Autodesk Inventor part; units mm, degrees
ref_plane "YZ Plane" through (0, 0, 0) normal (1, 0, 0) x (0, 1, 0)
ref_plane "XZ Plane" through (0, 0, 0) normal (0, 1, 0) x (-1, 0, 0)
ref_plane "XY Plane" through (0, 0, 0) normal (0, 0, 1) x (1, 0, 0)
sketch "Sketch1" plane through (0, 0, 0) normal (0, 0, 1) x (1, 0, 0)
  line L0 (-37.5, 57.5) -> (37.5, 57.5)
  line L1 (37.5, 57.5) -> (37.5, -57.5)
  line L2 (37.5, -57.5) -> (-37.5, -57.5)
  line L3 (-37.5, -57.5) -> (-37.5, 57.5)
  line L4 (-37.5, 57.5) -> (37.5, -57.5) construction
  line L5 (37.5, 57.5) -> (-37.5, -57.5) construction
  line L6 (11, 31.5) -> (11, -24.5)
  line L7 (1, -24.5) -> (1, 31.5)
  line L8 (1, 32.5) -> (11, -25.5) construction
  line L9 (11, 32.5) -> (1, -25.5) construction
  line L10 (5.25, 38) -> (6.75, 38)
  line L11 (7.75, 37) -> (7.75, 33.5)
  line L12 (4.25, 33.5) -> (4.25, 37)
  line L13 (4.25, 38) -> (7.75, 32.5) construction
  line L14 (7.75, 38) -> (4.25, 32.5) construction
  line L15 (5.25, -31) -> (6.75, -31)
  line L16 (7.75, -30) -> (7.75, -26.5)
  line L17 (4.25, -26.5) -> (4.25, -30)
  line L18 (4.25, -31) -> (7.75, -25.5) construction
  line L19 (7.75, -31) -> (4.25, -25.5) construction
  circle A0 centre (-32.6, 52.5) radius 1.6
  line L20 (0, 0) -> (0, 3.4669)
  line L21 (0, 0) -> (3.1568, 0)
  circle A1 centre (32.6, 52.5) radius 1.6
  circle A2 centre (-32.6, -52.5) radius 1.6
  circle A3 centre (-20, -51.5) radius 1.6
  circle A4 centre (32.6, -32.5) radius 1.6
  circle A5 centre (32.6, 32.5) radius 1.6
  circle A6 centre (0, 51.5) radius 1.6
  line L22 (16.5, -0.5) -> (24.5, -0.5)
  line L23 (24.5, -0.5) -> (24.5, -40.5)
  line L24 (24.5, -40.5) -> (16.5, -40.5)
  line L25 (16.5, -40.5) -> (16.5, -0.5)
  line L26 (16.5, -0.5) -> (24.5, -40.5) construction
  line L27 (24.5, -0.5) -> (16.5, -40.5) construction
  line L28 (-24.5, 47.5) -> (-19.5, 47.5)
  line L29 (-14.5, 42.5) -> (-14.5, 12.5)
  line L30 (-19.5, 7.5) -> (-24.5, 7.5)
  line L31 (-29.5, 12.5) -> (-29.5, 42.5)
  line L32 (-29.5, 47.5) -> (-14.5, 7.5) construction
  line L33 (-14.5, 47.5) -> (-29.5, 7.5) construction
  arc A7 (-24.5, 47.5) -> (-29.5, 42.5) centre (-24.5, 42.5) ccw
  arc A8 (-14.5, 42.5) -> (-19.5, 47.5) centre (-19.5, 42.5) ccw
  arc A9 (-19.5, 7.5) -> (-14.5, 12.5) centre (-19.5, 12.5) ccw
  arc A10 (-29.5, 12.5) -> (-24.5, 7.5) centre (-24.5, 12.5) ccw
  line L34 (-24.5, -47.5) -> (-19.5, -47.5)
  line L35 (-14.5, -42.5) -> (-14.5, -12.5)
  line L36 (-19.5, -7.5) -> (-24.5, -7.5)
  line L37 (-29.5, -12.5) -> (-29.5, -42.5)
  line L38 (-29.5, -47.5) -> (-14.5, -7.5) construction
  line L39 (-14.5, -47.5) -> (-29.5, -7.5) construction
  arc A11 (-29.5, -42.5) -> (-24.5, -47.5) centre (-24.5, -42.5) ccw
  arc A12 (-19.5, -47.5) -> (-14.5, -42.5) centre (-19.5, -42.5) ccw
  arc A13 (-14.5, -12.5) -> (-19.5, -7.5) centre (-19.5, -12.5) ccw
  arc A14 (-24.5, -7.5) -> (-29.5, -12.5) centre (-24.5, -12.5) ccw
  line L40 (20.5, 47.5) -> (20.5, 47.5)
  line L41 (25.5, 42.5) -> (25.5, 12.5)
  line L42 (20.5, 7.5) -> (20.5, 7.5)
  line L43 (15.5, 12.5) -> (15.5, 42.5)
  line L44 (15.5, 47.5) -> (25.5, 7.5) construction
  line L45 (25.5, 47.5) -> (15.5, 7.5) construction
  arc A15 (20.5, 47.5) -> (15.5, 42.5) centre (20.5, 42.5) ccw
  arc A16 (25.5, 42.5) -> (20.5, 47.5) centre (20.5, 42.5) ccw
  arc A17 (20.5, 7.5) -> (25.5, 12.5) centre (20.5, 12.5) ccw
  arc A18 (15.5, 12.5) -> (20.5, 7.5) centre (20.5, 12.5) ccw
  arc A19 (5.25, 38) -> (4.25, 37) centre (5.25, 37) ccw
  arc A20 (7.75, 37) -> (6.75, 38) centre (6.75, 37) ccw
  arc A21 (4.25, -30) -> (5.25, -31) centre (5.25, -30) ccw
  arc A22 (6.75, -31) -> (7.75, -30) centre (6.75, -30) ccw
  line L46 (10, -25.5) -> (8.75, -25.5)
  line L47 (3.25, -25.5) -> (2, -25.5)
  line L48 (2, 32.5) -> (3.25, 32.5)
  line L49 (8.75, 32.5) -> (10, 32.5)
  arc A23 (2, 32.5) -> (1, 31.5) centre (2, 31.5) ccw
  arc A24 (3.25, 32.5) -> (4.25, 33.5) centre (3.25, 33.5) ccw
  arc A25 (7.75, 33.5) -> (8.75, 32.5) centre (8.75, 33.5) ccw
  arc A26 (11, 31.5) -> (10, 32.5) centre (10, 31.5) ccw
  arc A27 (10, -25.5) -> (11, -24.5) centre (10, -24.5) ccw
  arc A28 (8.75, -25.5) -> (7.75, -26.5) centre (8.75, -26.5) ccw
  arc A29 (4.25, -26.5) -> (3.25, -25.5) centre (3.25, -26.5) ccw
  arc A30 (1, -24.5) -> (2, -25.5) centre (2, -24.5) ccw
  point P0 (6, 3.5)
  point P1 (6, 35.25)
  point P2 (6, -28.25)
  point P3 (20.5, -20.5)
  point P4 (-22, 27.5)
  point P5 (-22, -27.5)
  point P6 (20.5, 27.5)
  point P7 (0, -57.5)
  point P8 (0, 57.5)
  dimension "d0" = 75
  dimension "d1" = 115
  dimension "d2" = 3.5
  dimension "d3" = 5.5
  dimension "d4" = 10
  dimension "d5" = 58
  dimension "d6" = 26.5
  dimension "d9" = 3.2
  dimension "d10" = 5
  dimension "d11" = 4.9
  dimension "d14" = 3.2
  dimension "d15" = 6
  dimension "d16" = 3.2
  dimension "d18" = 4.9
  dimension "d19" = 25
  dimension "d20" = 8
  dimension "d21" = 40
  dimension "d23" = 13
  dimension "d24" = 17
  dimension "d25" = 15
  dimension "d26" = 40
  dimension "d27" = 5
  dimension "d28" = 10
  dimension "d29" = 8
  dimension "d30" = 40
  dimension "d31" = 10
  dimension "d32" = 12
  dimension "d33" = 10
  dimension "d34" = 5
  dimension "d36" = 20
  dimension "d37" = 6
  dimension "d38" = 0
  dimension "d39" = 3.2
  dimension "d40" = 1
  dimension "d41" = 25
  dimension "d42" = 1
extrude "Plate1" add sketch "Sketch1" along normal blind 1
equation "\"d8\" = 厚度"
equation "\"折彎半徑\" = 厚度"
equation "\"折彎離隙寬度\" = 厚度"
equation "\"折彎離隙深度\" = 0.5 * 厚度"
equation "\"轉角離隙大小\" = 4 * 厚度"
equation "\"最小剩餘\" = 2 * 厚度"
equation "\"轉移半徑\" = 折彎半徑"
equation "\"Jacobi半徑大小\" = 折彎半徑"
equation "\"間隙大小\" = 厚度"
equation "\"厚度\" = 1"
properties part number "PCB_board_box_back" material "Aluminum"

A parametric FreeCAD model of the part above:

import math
import FreeCAD as App
import Part
import Sketcher
Q = App.Units.Quantity

doc = App.newDocument("Part")
params = doc.addObject("Spreadsheet::Sheet", "Params")
for row, (alias, value) in enumerate([
    ("sketch1_radius", "5 mm"),
    ("sketch1_radius2", "1 mm"),
    ("sketch1_diameter", "3.2 mm"),
    ("sketch1_width", "75 mm"),
    ("sketch1_width2", "5 mm"),
    ("pad1_length", "1 mm"),
], start=1):
    params.set(f"A{row}", alias)
    params.set(f"B{row}", "=" + value)
    params.setAlias(f"B{row}", alias)

body = doc.addObject("PartDesign::Body", "Body")

# Sketch on XY plane
sketch1 = body.newObject("Sketcher::SketchObject", "Sketch")
sketch1.AttachmentSupport = (doc.getObject("XY_Plane"), [""])
sketch1.MapMode = "FlatFace"
sketch1.addGeometry([
    Part.LineSegment(App.Vector(37.5, 57.5, 0), App.Vector(-37.5, 57.5, 0)),  # 0
    Part.LineSegment(App.Vector(-37.5, 57.5, 0), App.Vector(-37.5, -57.5, 0)),  # 1
    Part.LineSegment(App.Vector(-37.5, -57.5, 0), App.Vector(37.5, -57.5, 0)),  # 2
    Part.LineSegment(App.Vector(37.5, -57.5, 0), App.Vector(37.5, 57.5, 0)),  # 3
    Part.Circle(App.Vector(-32.6, -52.5, 0), App.Vector(0, 0, 1), 1.6),  # 4
    Part.Circle(App.Vector(-20, -51.5, 0), App.Vector(0, 0, 1), 1.6),  # 5
    Part.LineSegment(App.Vector(-19.5, -47.5, 0), App.Vector(-24.5, -47.5, 0)),  # 6
    Part.ArcOfCircle(Part.Circle(App.Vector(-24.5, -42.5, 0), App.Vector(0, 0, 1), 5), math.radians(180), math.radians(270)),  # 7
    Part.LineSegment(App.Vector(-29.5, -42.5, 0), App.Vector(-29.5, -12.5, 0)),  # 8
    Part.ArcOfCircle(Part.Circle(App.Vector(-24.5, -12.5, 0), App.Vector(0, 0, 1), 5), math.radians(90), math.radians(180)),  # 9
    Part.LineSegment(App.Vector(-24.5, -7.5, 0), App.Vector(-19.5, -7.5, 0)),  # 10
    Part.ArcOfCircle(Part.Circle(App.Vector(-19.5, -12.5, 0), App.Vector(0, 0, 1), 5), math.radians(0), math.radians(90)),  # 11
    Part.LineSegment(App.Vector(-14.5, -12.5, 0), App.Vector(-14.5, -42.5, 0)),  # 12
    Part.ArcOfCircle(Part.Circle(App.Vector(-19.5, -42.5, 0), App.Vector(0, 0, 1), 5), math.radians(-90), math.radians(0)),  # 13
    Part.Circle(App.Vector(32.6, -32.5, 0), App.Vector(0, 0, 1), 1.6),  # 14
    Part.LineSegment(App.Vector(16.5, -40.5, 0), App.Vector(16.5, -0.5, 0)),  # 15
    Part.LineSegment(App.Vector(16.5, -0.5, 0), App.Vector(24.5, -0.5, 0)),  # 16
    Part.LineSegment(App.Vector(24.5, -0.5, 0), App.Vector(24.5, -40.5, 0)),  # 17
    Part.LineSegment(App.Vector(24.5, -40.5, 0), App.Vector(16.5, -40.5, 0)),  # 18
    Part.ArcOfCircle(Part.Circle(App.Vector(-24.5, 42.5, 0), App.Vector(0, 0, 1), 5), math.radians(90), math.radians(180)),  # 19
    Part.LineSegment(App.Vector(-24.5, 47.5, 0), App.Vector(-19.5, 47.5, 0)),  # 20
    Part.ArcOfCircle(Part.Circle(App.Vector(-19.5, 42.5, 0), App.Vector(0, 0, 1), 5), math.radians(0), math.radians(90)),  # 21
    Part.LineSegment(App.Vector(-14.5, 42.5, 0), App.Vector(-14.5, 12.5, 0)),  # 22
    Part.ArcOfCircle(Part.Circle(App.Vector(-19.5, 12.5, 0), App.Vector(0, 0, 1), 5), math.radians(-90), math.radians(0)),  # 23
    Part.LineSegment(App.Vector(-19.5, 7.5, 0), App.Vector(-24.5, 7.5, 0)),  # 24
    Part.ArcOfCircle(Part.Circle(App.Vector(-24.5, 12.5, 0), App.Vector(0, 0, 1), 5), math.radians(180), math.radians(270)),  # 25
    Part.LineSegment(App.Vector(-29.5, 12.5, 0), App.Vector(-29.5, 42.5, 0)),  # 26
    Part.Circle(App.Vector(-32.6, 52.5, 0), App.Vector(0, 0, 1), 1.6),  # 27
    Part.ArcOfCircle(Part.Circle(App.Vector(10, 31.5, 0), App.Vector(0, 0, 1), 1), math.radians(0), math.radians(90)),  # 28
    Part.LineSegment(App.Vector(11, 31.5, 0), App.Vector(11, -24.5, 0)),  # 29
    Part.ArcOfCircle(Part.Circle(App.Vector(10, -24.5, 0), App.Vector(0, 0, 1), 1), math.radians(-90), math.radians(0)),  # 30
    Part.LineSegment(App.Vector(10, -25.5, 0), App.Vector(8.8, -25.5, 0)),  # 31
    Part.ArcOfCircle(Part.Circle(App.Vector(8.8, -26.5, 0), App.Vector(0, 0, 1), 1), math.radians(90), math.radians(180)),  # 32
    Part.LineSegment(App.Vector(7.8, -26.5, 0), App.Vector(7.8, -30, 0)),  # 33
    Part.ArcOfCircle(Part.Circle(App.Vector(6.8, -30, 0), App.Vector(0, 0, 1), 1), math.radians(-90), math.radians(0)),  # 34
    Part.LineSegment(App.Vector(6.8, -31, 0), App.Vector(5.2, -31, 0)),  # 35
    Part.ArcOfCircle(Part.Circle(App.Vector(5.2, -30, 0), App.Vector(0, 0, 1), 1), math.radians(180), math.radians(270)),  # 36
    Part.LineSegment(App.Vector(4.2, -30, 0), App.Vector(4.2, -26.5, 0)),  # 37
    Part.ArcOfCircle(Part.Circle(App.Vector(3.2, -26.5, 0), App.Vector(0, 0, 1), 1), math.radians(0), math.radians(90)),  # 38
    Part.LineSegment(App.Vector(3.2, -25.5, 0), App.Vector(2, -25.5, 0)),  # 39
    Part.ArcOfCircle(Part.Circle(App.Vector(2, -24.5, 0), App.Vector(0, 0, 1), 1), math.radians(180), math.radians(270)),  # 40
    Part.LineSegment(App.Vector(1, -24.5, 0), App.Vector(1, 31.5, 0)),  # 41
    Part.ArcOfCircle(Part.Circle(App.Vector(2, 31.5, 0), App.Vector(0, 0, 1), 1), math.radians(90), math.radians(180)),  # 42
    Part.LineSegment(App.Vector(2, 32.5, 0), App.Vector(3.2, 32.5, 0)),  # 43
    Part.ArcOfCircle(Part.Circle(App.Vector(3.2, 33.5, 0), App.Vector(0, 0, 1), 1), math.radians(-90), math.radians(0)),  # 44
    Part.LineSegment(App.Vector(4.2, 33.5, 0), App.Vector(4.2, 37, 0)),  # 45
    Part.ArcOfCircle(Part.Circle(App.Vector(5.2, 37, 0), App.Vector(0, 0, 1), 1), math.radians(90), math.radians(180)),  # 46
    Part.LineSegment(App.Vector(5.2, 38, 0), App.Vector(6.8, 38, 0)),  # 47
    Part.ArcOfCircle(Part.Circle(App.Vector(6.8, 37, 0), App.Vector(0, 0, 1), 1), math.radians(0), math.radians(90)),  # 48
    Part.LineSegment(App.Vector(7.8, 37, 0), App.Vector(7.8, 33.5, 0)),  # 49
    Part.ArcOfCircle(Part.Circle(App.Vector(8.8, 33.5, 0), App.Vector(0, 0, 1), 1), math.radians(180), math.radians(270)),  # 50
    Part.LineSegment(App.Vector(8.8, 32.5, 0), App.Vector(10, 32.5, 0)),  # 51
    Part.ArcOfCircle(Part.Circle(App.Vector(20.5, 42.5, 0), App.Vector(0, 0, 1), 5), math.radians(0), math.radians(180)),  # 52
    Part.LineSegment(App.Vector(25.5, 42.5, 0), App.Vector(25.5, 12.5, 0)),  # 53
    Part.ArcOfCircle(Part.Circle(App.Vector(20.5, 12.5, 0), App.Vector(0, 0, 1), 5), math.radians(180), math.radians(360)),  # 54
    Part.LineSegment(App.Vector(15.5, 12.5, 0), App.Vector(15.5, 42.5, 0)),  # 55
    Part.Circle(App.Vector(0, 51.5, 0), App.Vector(0, 0, 1), 1.6),  # 56
    Part.Circle(App.Vector(32.6, 32.5, 0), App.Vector(0, 0, 1), 1.6),  # 57
    Part.Circle(App.Vector(32.6, 52.5, 0), App.Vector(0, 0, 1), 1.6),  # 58
], False)
sketch1.addConstraint([
    Sketcher.Constraint("Coincident", 0, 2, 1, 1),
    Sketcher.Constraint("Coincident", 1, 2, 2, 1),
    Sketcher.Constraint("Coincident", 2, 2, 3, 1),
    Sketcher.Constraint("Coincident", 3, 2, 0, 1),
    Sketcher.Constraint("Tangent", 6, 2, 7, 2),
    Sketcher.Constraint("Tangent", 7, 1, 8, 1),
    Sketcher.Constraint("Tangent", 8, 2, 9, 2),
    Sketcher.Constraint("Tangent", 9, 1, 10, 1),
    Sketcher.Constraint("Tangent", 10, 2, 11, 2),
    Sketcher.Constraint("Tangent", 11, 1, 12, 1),
    Sketcher.Constraint("Tangent", 12, 2, 13, 2),
    Sketcher.Constraint("Tangent", 13, 1, 6, 1),
    Sketcher.Constraint("Coincident", 15, 2, 16, 1),
    Sketcher.Constraint("Coincident", 16, 2, 17, 1),
    Sketcher.Constraint("Coincident", 17, 2, 18, 1),
    Sketcher.Constraint("Coincident", 18, 2, 15, 1),
    Sketcher.Constraint("Tangent", 19, 1, 20, 1),
    Sketcher.Constraint("Tangent", 20, 2, 21, 2),
    Sketcher.Constraint("Tangent", 21, 1, 22, 1),
    Sketcher.Constraint("Tangent", 22, 2, 23, 2),
    Sketcher.Constraint("Tangent", 23, 1, 24, 1),
    Sketcher.Constraint("Tangent", 24, 2, 25, 2),
    Sketcher.Constraint("Tangent", 25, 1, 26, 1),
    Sketcher.Constraint("Tangent", 26, 2, 19, 2),
    Sketcher.Constraint("Tangent", 28, 1, 29, 1),
    Sketcher.Constraint("Tangent", 29, 2, 30, 2),
    Sketcher.Constraint("Tangent", 30, 1, 31, 1),
    Sketcher.Constraint("Tangent", 31, 2, 32, 1),
    Sketcher.Constraint("Tangent", 32, 2, 33, 1),
    Sketcher.Constraint("Tangent", 33, 2, 34, 2),
    Sketcher.Constraint("Tangent", 34, 1, 35, 1),
    Sketcher.Constraint("Tangent", 35, 2, 36, 2),
    Sketcher.Constraint("Tangent", 36, 1, 37, 1),
    Sketcher.Constraint("Tangent", 37, 2, 38, 1),
    Sketcher.Constraint("Tangent", 38, 2, 39, 1),
    Sketcher.Constraint("Tangent", 39, 2, 40, 2),
    Sketcher.Constraint("Tangent", 40, 1, 41, 1),
    Sketcher.Constraint("Tangent", 41, 2, 42, 2),
    Sketcher.Constraint("Tangent", 42, 1, 43, 1),
    Sketcher.Constraint("Tangent", 43, 2, 44, 1),
    Sketcher.Constraint("Tangent", 44, 2, 45, 1),
    Sketcher.Constraint("Tangent", 45, 2, 46, 2),
    Sketcher.Constraint("Tangent", 46, 1, 47, 1),
    Sketcher.Constraint("Tangent", 47, 2, 48, 2),
    Sketcher.Constraint("Tangent", 48, 1, 49, 1),
    Sketcher.Constraint("Tangent", 49, 2, 50, 1),
    Sketcher.Constraint("Tangent", 50, 2, 51, 1),
    Sketcher.Constraint("Tangent", 51, 2, 28, 2),
    Sketcher.Constraint("Tangent", 52, 1, 53, 1),
    Sketcher.Constraint("Tangent", 53, 2, 54, 2),
    Sketcher.Constraint("Tangent", 54, 1, 55, 1),
    Sketcher.Constraint("Tangent", 55, 2, 52, 2),
    Sketcher.Constraint("Horizontal", 0),
    Sketcher.Constraint("Vertical", 1),
    Sketcher.Constraint("Horizontal", 2),
    Sketcher.Constraint("Vertical", 3),
    Sketcher.Constraint("Horizontal", 6),
    Sketcher.Constraint("Vertical", 8),
    Sketcher.Constraint("Horizontal", 10),
    Sketcher.Constraint("Vertical", 12),
    Sketcher.Constraint("Vertical", 15),
    Sketcher.Constraint("Horizontal", 16),
    Sketcher.Constraint("Vertical", 17),
    Sketcher.Constraint("Horizontal", 18),
    Sketcher.Constraint("Horizontal", 20),
    Sketcher.Constraint("Vertical", 22),
    Sketcher.Constraint("Horizontal", 24),
    Sketcher.Constraint("Vertical", 26),
    Sketcher.Constraint("Vertical", 29),
    Sketcher.Constraint("Horizontal", 31),
    Sketcher.Constraint("Vertical", 33),
    Sketcher.Constraint("Horizontal", 35),
    Sketcher.Constraint("Vertical", 37),
    Sketcher.Constraint("Horizontal", 39),
    Sketcher.Constraint("Vertical", 41),
    Sketcher.Constraint("Horizontal", 43),
    Sketcher.Constraint("Vertical", 45),
    Sketcher.Constraint("Horizontal", 47),
    Sketcher.Constraint("Vertical", 49),
    Sketcher.Constraint("Horizontal", 51),
    Sketcher.Constraint("Vertical", 53),
    Sketcher.Constraint("Vertical", 55),
    Sketcher.Constraint("Equal", 4, 5),
    Sketcher.Constraint("Equal", 7, 9),
    Sketcher.Constraint("Equal", 9, 11),
    Sketcher.Constraint("Equal", 11, 13),
    Sketcher.Constraint("Equal", 5, 14),
    Sketcher.Constraint("Equal", 13, 19),
    Sketcher.Constraint("Equal", 19, 21),
    Sketcher.Constraint("Equal", 21, 23),
    Sketcher.Constraint("Equal", 23, 25),
    Sketcher.Constraint("Equal", 14, 27),
    Sketcher.Constraint("Equal", 28, 30),
    Sketcher.Constraint("Equal", 30, 32),
    Sketcher.Constraint("Equal", 32, 34),
    Sketcher.Constraint("Equal", 34, 36),
    Sketcher.Constraint("Equal", 36, 38),
    Sketcher.Constraint("Equal", 38, 40),
    Sketcher.Constraint("Equal", 40, 42),
    Sketcher.Constraint("Equal", 42, 44),
    Sketcher.Constraint("Equal", 44, 46),
    Sketcher.Constraint("Equal", 46, 48),
    Sketcher.Constraint("Equal", 48, 50),
    Sketcher.Constraint("Equal", 25, 52),
    Sketcher.Constraint("Equal", 27, 56),
    Sketcher.Constraint("Equal", 56, 57),
    Sketcher.Constraint("Equal", 57, 58),
    Sketcher.Constraint("Symmetric", 4, 3, 58, 3, -1, 1),
    Sketcher.Constraint("Symmetric", 0, 2, 2, 2, -1, 1),
    Sketcher.Constraint("Symmetric", 27, 3, 58, 3, -2),
    Sketcher.Constraint("Symmetric", 7, 3, 19, 3, -1),
    Sketcher.Constraint("Symmetric", 11, 3, 23, 3, -1),
    Sketcher.Constraint("Symmetric", 14, 3, 57, 3, -1),
    Sketcher.Constraint("PointOnObject", 56, 3, -2),
    Sketcher.Constraint("Horizontal", 32, 3, 38, 3),
    Sketcher.Constraint("Horizontal", 28, 3, 42, 3),
    Sketcher.Constraint("Horizontal", 21, 3, 52, 3),
    Sketcher.Constraint("Horizontal", 25, 3, 54, 3),
    Sketcher.Constraint("Horizontal", 57, 3, 42, 1),
    Sketcher.Constraint("Vertical", 38, 3, 44, 3),
    Sketcher.Constraint("Vertical", 34, 3, 48, 3),
    Sketcher.Constraint("Vertical", 57, 3, 58, 3),
    Sketcher.Constraint("Equal", 31, 39),
    Sketcher.Constraint("Equal", 37, 45),
    Sketcher.Constraint("Radius", 7, Q("5 mm")),
    Sketcher.Constraint("Radius", 28, Q("1 mm")),
    Sketcher.Constraint("Diameter", 4, Q("3.2 mm")),
    Sketcher.Constraint("DistanceX", 0, 2, 0, 1, Q("75 mm")),
    Sketcher.Constraint("DistanceX", 6, 2, 6, 1, Q("5 mm")),
    Sketcher.Constraint("DistanceX", 16, 1, 16, 2, Q("8 mm")),
    Sketcher.Constraint("DistanceY", 1, 2, 1, 1, Q("115 mm")),
    Sketcher.Constraint("DistanceY", 15, 1, 15, 2, Q("40 mm")),
    Sketcher.Constraint("DistanceY", 33, 2, 33, 1, Q("3.5 mm")),
    Sketcher.Constraint("DistanceX", 5, 3, -1, 1, Q("20 mm")),
    Sketcher.Constraint("DistanceX", -1, 1, 28, 3, Q("10 mm")),
    Sketcher.Constraint("DistanceX", -1, 1, 40, 1, Q("1 mm")),
    Sketcher.Constraint("DistanceY", 32, 3, -1, 1, Q("26.5 mm")),
    Sketcher.Constraint("DistanceY", 8, 1, 8, 2, Q("30 mm")),
    Sketcher.Constraint("DistanceY", 29, 2, 29, 1, Q("56 mm")),
    Sketcher.Constraint("DistanceX", 35, 2, 35, 1, Q("1.5 mm")),
    Sketcher.Constraint("DistanceX", 4, 3, -1, 1, Q("32.6 mm")),
    Sketcher.Constraint("DistanceY", 4, 3, -1, 1, Q("52.5 mm")),
    Sketcher.Constraint("DistanceY", 5, 3, -1, 1, Q("51.5 mm")),
    Sketcher.Constraint("DistanceX", 7, 3, -1, 1, Q("24.5 mm")),
    Sketcher.Constraint("DistanceY", 7, 3, -1, 1, Q("42.5 mm")),
    Sketcher.Constraint("DistanceX", -1, 1, 52, 3, Q("20.5 mm")),
    Sketcher.Constraint("DistanceY", -1, 1, 56, 3, Q("51.5 mm")),
    Sketcher.Constraint("DistanceX", -1, 1, 15, 2, Q("16.5 mm")),
    Sketcher.Constraint("DistanceY", 15, 2, -1, 1, Q("0.5 mm")),
])
sketch1.setExpression("Constraints[124]", "Params.sketch1_radius")
sketch1.setExpression("Constraints[125]", "Params.sketch1_radius2")
sketch1.setExpression("Constraints[126]", "Params.sketch1_diameter")
sketch1.setExpression("Constraints[127]", "Params.sketch1_width")
sketch1.setExpression("Constraints[128]", "Params.sketch1_width2")
pad1 = body.newObject("PartDesign::Pad", "Pad")
pad1.Profile = sketch1
pad1.setExpression("Length", "Params.pad1_length")

doc.recompute()
